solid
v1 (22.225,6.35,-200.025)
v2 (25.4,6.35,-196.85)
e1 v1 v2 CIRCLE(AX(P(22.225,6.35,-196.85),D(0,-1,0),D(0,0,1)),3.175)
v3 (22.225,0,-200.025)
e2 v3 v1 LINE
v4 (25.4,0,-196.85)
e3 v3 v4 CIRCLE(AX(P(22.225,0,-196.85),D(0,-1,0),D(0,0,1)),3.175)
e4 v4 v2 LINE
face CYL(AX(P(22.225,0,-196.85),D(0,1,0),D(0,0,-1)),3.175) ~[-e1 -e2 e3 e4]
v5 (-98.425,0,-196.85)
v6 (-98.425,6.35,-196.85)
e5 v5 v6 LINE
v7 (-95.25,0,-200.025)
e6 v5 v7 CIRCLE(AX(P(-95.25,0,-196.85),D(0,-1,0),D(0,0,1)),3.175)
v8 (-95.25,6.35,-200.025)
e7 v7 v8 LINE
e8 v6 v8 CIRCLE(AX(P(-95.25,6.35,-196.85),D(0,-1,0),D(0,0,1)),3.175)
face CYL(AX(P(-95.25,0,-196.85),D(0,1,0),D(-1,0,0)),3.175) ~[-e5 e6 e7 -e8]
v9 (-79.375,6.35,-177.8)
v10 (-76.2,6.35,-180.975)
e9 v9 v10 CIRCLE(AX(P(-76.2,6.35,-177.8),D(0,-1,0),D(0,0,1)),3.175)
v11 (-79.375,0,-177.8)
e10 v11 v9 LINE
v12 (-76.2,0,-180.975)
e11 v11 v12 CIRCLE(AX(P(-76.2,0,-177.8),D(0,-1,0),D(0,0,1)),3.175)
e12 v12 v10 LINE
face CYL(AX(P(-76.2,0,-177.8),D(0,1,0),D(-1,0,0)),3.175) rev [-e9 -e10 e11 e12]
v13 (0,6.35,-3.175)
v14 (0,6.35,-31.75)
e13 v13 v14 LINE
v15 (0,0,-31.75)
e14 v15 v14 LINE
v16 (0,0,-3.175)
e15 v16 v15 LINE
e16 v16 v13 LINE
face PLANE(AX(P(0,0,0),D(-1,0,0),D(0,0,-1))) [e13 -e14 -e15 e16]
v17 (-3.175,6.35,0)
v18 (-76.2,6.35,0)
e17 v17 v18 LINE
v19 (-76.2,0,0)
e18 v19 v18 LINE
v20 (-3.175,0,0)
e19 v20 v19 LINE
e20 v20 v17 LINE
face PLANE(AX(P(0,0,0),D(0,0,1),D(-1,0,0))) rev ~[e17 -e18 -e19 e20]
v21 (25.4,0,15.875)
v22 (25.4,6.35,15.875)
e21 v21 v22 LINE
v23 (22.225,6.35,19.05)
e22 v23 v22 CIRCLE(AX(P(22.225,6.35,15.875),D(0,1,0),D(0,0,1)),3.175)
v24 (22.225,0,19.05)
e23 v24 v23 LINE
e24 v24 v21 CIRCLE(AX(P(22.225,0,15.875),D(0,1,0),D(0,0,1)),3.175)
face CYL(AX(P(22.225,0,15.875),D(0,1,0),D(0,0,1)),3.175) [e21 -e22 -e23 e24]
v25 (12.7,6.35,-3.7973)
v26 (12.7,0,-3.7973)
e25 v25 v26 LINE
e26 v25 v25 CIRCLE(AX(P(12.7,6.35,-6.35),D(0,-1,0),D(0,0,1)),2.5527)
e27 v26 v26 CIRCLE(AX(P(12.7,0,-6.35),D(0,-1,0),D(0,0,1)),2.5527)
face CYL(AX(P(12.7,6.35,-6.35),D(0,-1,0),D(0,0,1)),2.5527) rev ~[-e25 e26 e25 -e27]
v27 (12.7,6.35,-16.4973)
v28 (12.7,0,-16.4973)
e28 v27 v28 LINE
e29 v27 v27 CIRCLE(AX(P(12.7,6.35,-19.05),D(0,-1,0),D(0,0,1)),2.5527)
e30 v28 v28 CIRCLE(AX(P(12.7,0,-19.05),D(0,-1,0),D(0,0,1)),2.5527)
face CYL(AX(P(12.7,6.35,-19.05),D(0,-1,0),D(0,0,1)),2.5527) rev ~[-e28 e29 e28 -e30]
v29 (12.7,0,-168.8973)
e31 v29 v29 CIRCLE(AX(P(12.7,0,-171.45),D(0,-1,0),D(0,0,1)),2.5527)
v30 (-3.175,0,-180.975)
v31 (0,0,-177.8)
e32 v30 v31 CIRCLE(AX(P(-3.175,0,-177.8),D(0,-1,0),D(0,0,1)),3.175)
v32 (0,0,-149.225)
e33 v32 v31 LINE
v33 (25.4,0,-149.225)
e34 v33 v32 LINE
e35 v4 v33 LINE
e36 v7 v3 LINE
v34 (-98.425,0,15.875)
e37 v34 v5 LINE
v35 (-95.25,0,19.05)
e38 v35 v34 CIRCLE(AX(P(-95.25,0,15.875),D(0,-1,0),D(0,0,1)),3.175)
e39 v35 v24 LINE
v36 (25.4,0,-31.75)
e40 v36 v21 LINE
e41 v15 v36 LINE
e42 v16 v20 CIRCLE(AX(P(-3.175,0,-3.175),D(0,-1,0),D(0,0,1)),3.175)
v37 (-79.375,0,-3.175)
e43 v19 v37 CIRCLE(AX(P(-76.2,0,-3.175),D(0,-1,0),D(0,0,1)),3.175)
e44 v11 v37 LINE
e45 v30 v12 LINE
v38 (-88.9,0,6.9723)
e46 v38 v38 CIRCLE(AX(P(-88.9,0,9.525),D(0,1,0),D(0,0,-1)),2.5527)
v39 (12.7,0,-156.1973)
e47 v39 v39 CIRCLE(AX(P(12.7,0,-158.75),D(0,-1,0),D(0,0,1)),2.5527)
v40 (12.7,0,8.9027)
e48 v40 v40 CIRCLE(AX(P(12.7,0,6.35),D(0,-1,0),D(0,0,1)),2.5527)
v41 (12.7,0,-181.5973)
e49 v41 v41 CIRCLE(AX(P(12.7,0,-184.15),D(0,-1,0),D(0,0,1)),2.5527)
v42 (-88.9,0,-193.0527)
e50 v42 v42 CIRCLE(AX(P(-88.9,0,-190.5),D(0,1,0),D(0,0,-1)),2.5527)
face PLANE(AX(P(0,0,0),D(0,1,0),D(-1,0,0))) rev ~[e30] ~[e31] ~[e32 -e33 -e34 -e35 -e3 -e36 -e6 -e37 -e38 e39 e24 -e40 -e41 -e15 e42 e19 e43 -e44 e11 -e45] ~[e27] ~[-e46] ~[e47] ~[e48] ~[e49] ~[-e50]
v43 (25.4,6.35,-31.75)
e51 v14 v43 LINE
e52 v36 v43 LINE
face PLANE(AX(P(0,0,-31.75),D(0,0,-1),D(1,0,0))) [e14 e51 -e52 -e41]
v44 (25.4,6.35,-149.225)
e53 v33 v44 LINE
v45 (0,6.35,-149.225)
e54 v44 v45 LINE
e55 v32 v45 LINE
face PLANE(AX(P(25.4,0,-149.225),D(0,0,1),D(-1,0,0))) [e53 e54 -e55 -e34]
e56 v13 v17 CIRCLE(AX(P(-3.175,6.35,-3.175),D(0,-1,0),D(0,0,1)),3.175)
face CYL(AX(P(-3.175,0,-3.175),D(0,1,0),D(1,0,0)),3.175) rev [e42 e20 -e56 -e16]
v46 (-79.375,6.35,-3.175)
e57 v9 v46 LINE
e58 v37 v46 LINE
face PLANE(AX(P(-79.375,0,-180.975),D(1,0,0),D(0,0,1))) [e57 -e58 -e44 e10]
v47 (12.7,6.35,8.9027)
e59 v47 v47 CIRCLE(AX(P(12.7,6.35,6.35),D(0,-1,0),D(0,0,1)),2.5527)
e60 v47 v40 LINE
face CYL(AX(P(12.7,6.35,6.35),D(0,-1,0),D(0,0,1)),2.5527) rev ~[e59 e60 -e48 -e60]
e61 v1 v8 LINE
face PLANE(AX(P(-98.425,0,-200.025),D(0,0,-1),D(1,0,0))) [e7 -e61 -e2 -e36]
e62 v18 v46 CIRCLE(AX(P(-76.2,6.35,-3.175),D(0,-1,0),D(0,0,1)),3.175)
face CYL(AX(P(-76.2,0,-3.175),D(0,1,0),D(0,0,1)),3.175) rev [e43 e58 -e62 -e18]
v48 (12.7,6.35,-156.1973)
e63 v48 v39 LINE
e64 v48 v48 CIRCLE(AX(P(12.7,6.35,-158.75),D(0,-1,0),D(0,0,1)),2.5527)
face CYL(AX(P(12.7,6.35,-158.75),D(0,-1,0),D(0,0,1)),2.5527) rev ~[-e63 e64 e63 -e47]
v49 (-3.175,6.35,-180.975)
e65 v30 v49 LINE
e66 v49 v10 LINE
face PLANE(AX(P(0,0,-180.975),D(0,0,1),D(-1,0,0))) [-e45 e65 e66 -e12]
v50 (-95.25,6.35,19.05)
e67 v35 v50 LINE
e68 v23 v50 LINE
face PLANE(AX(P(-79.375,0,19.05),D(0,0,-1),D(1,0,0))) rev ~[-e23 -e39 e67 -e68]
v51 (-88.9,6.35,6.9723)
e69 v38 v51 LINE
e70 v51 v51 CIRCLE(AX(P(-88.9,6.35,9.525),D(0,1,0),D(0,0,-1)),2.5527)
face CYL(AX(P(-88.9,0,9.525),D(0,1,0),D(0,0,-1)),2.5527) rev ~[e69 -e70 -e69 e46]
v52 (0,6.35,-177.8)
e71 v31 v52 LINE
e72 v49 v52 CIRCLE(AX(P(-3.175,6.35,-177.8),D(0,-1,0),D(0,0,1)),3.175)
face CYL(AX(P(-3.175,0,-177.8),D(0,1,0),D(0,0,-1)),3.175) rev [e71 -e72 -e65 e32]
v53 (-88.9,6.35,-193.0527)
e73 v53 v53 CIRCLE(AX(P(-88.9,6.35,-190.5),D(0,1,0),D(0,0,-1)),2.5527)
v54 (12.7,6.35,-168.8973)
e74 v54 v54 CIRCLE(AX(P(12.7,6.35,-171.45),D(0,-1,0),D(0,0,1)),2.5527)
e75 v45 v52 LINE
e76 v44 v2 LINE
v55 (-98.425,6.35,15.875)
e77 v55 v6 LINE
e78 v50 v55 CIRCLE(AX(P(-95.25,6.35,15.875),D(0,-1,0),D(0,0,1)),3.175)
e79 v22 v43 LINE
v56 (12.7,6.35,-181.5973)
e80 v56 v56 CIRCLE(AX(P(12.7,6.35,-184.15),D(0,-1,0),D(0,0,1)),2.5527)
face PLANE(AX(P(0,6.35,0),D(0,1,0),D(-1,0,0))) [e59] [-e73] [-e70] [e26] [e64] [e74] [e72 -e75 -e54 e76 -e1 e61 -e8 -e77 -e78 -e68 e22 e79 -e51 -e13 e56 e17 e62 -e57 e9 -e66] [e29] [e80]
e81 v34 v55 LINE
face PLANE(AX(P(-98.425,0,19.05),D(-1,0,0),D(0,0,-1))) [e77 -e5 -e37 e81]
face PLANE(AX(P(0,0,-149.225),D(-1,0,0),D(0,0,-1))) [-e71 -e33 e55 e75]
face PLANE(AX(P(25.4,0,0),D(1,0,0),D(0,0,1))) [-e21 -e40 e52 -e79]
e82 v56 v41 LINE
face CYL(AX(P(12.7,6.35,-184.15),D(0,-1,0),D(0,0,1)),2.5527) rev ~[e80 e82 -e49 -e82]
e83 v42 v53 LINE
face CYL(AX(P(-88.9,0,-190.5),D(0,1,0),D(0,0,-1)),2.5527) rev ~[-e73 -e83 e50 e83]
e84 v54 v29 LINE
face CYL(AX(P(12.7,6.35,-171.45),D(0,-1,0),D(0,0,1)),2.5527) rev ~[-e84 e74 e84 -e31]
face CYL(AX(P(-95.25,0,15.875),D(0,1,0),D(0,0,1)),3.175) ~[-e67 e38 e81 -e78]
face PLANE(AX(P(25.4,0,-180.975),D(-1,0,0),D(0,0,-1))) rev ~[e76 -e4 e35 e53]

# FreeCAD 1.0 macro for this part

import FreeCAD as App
import Part
import Sketcher
Q = App.Units.Quantity


def edges_at(feature, points):
    """Names of the edges that pass closest to the given points."""
    edges = feature.Shape.Edges
    near = lambda p: min(range(len(edges)), key=lambda i: edges[i].distToShape(Part.Vertex(*p))[0])
    return sorted({f"Edge{near(p) + 1}" for p in points})

doc = App.newDocument("Part")
body = doc.addObject("PartDesign::Body", "Body")

# Sketch on XZ plane
sketch1 = body.newObject("Sketcher::SketchObject", "Sketch")
sketch1.AttachmentSupport = (doc.getObject("XZ_Plane"), [""])
sketch1.MapMode = "FlatFace"
sketch1.addGeometry([
    Part.LineSegment(App.Vector(25, 19, 0), App.Vector(25, -32, 0)),  # 0
    Part.LineSegment(App.Vector(25, -32, 0), App.Vector(0, -32, 0)),  # 1
    Part.LineSegment(App.Vector(0, -32, 0), App.Vector(0, 0, 0)),  # 2
    Part.LineSegment(App.Vector(0, 0, 0), App.Vector(-79, 0, 0)),  # 3
    Part.LineSegment(App.Vector(-79, 0, 0), App.Vector(-79, -181, 0)),  # 4
    Part.LineSegment(App.Vector(-79, -181, 0), App.Vector(0, -181, 0)),  # 5
    Part.LineSegment(App.Vector(0, -181, 0), App.Vector(0, -149, 0)),  # 6
    Part.LineSegment(App.Vector(0, -149, 0), App.Vector(25, -149, 0)),  # 7
    Part.LineSegment(App.Vector(25, -149, 0), App.Vector(25, -200, 0)),  # 8
    Part.LineSegment(App.Vector(25, -200, 0), App.Vector(-98, -200, 0)),  # 9
    Part.LineSegment(App.Vector(-98, -200, 0), App.Vector(-98, 19, 0)),  # 10
    Part.LineSegment(App.Vector(-98, 19, 0), App.Vector(25, 19, 0)),  # 11
], False)
sketch1.addConstraint([
    Sketcher.Constraint("Coincident", 0, 2, 1, 1),
    Sketcher.Constraint("Coincident", 1, 2, 2, 1),
    Sketcher.Constraint("Coincident", 2, 2, 3, 1),
    Sketcher.Constraint("Coincident", 3, 2, 4, 1),
    Sketcher.Constraint("Coincident", 4, 2, 5, 1),
    Sketcher.Constraint("Coincident", 5, 2, 6, 1),
    Sketcher.Constraint("Coincident", 6, 2, 7, 1),
    Sketcher.Constraint("Coincident", 7, 2, 8, 1),
    Sketcher.Constraint("Coincident", 8, 2, 9, 1),
    Sketcher.Constraint("Coincident", 9, 2, 10, 1),
    Sketcher.Constraint("Coincident", 10, 2, 11, 1),
    Sketcher.Constraint("Coincident", 11, 2, 0, 1),
    Sketcher.Constraint("Vertical", 0),
    Sketcher.Constraint("Horizontal", 1),
    Sketcher.Constraint("Vertical", 2),
    Sketcher.Constraint("Horizontal", 3),
    Sketcher.Constraint("Vertical", 4),
    Sketcher.Constraint("Horizontal", 5),
    Sketcher.Constraint("Vertical", 6),
    Sketcher.Constraint("Horizontal", 7),
    Sketcher.Constraint("Vertical", 8),
    Sketcher.Constraint("Horizontal", 9),
    Sketcher.Constraint("Vertical", 10),
    Sketcher.Constraint("Horizontal", 11),
    Sketcher.Constraint("Coincident", 2, 2, -1, 1),
    Sketcher.Constraint("PointOnObject", 5, 2, -2),
    Sketcher.Constraint("Vertical", 0, 2, 7, 2),
    Sketcher.Constraint("Equal", 2, 6),
    Sketcher.Constraint("Equal", 0, 8),
    Sketcher.Constraint("DistanceX", 1, 2, 1, 1, Q("1 in")),
    Sketcher.Constraint("DistanceY", 0, 2, 0, 1, Q("2 in")),
    Sketcher.Constraint("DistanceX", 3, 2, 3, 1, Q("3.125 in")),
    Sketcher.Constraint("DistanceY", 4, 2, 4, 1, Q("7.125 in")),
    Sketcher.Constraint("DistanceY", -1, 1, 10, 2, Q("0.75 in")),
    Sketcher.Constraint("DistanceX", 9, 2, 4, 2, Q("0.75 in")),
])
pad1 = body.newObject("PartDesign::Pad", "Pad")
pad1.Profile = sketch1
pad1.Length = Q("0.25 in")
pad1.Reversed = True

# Sketch on XZ plane
sketch2 = body.newObject("Sketcher::SketchObject", "Sketch001")
sketch2.AttachmentSupport = (doc.getObject("XZ_Plane"), [""])
sketch2.MapMode = "FlatFace"
sketch2.addGeometry([
    Part.Circle(App.Vector(-88.9, -190.5, 0), App.Vector(0, 0, 1), 2.6),
    Part.Circle(App.Vector(-88.9, 9.5, 0), App.Vector(0, 0, 1), 2.6),
], False)
sketch2.addConstraint([
    Sketcher.Constraint("Equal", 0, 1),
    Sketcher.Constraint("Vertical", 0, 3, 1, 3),
    Sketcher.Constraint("Diameter", 0, Q("0.201 in")),
    Sketcher.Constraint("DistanceX", 0, 3, -1, 1, Q("3.5 in")),
    Sketcher.Constraint("DistanceY", 0, 3, -1, 1, Q("7.5 in")),
    Sketcher.Constraint("DistanceY", -1, 1, 1, 3, Q("0.375 in")),
])
doc.recompute()
hole = body.newObject("PartDesign::Hole", "Hole")
hole.Profile = sketch2
hole.ThreadType = "None"
hole.Diameter = Q("0.201 in")
hole.DepthType = "ThroughAll"
doc.recompute()

fillet = body.newObject("PartDesign::Fillet", "Fillet")
fillet.Base = (hole, edges_at(hole, [
    (-98.425, 3.175, -200.025),
    (25.4, 3.175, -200.025),
    (-79.375, 3.175, -180.975),
    (-79.375, 3.175, 0),
    (-98.425, 3.175, 19.05),
    (25.4, 3.175, 19.05),
    (0, 3.175, 0),
    (0, 3.175, -180.975),
]))
fillet.Radius = Q("0.125 in")

# Sketch on XZ plane
sketch3 = body.newObject("Sketcher::SketchObject", "Sketch002")
sketch3.AttachmentSupport = (doc.getObject("XZ_Plane"), [""])
sketch3.MapMode = "FlatFace"
sketch3.AttachmentOffset = App.Placement(App.Vector(0, 0, -0.25 * 25.4), App.Rotation())
sketch3.addGeometry([
    Part.Circle(App.Vector(12.7, 6.3, 0), App.Vector(0, 0, 1), 2.6),  # 0
    Part.Circle(App.Vector(12.7, -6.3, 0), App.Vector(0, 0, 1), 2.6),  # 1
    Part.Circle(App.Vector(12.7, -19.1, 0), App.Vector(0, 0, 1), 2.6),  # 2
    Part.Circle(App.Vector(12.7, -44.5, 0), App.Vector(0, 0, 1), 2.6),  # 3
    Part.Circle(App.Vector(12.7, -57.1, 0), App.Vector(0, 0, 1), 2.6),  # 4
    Part.Circle(App.Vector(12.7, -69.8, 0), App.Vector(0, 0, 1), 2.6),  # 5
    Part.Circle(App.Vector(12.7, -82.5, 0), App.Vector(0, 0, 1), 2.6),  # 6
    Part.Circle(App.Vector(12.7, -95.2, 0), App.Vector(0, 0, 1), 2.6),  # 7
    Part.Circle(App.Vector(12.7, -108, 0), App.Vector(0, 0, 1), 2.6),  # 8
    Part.Circle(App.Vector(12.7, -120.7, 0), App.Vector(0, 0, 1), 2.6),  # 9
    Part.Circle(App.Vector(12.7, -133.3, 0), App.Vector(0, 0, 1), 2.6),  # 10
    Part.Circle(App.Vector(12.7, -146.1, 0), App.Vector(0, 0, 1), 2.6),  # 11
    Part.Circle(App.Vector(12.7, -158.8, 0), App.Vector(0, 0, 1), 2.6),  # 12
    Part.Circle(App.Vector(12.7, -171.4, 0), App.Vector(0, 0, 1), 2.6),  # 13
    Part.Circle(App.Vector(12.7, -184.2, 0), App.Vector(0, 0, 1), 2.6),  # 14
], False)
sketch3.addConstraint([
    Sketcher.Constraint("Equal", 0, 1),
    Sketcher.Constraint("Equal", 1, 2),
    Sketcher.Constraint("Equal", 2, 3),
    Sketcher.Constraint("Equal", 3, 4),
    Sketcher.Constraint("Equal", 4, 5),
    Sketcher.Constraint("Equal", 5, 6),
    Sketcher.Constraint("Equal", 6, 7),
    Sketcher.Constraint("Equal", 7, 8),
    Sketcher.Constraint("Equal", 8, 9),
    Sketcher.Constraint("Equal", 9, 10),
    Sketcher.Constraint("Equal", 10, 11),
    Sketcher.Constraint("Equal", 11, 12),
    Sketcher.Constraint("Equal", 12, 13),
    Sketcher.Constraint("Equal", 13, 14),
    Sketcher.Constraint("Symmetric", 0, 3, 1, 3, -1),
    Sketcher.Constraint("Vertical", 1, 3, 2, 3),
    Sketcher.Constraint("Vertical", 2, 3, 3, 3),
    Sketcher.Constraint("Vertical", 3, 3, 4, 3),
    Sketcher.Constraint("Vertical", 4, 3, 5, 3),
    Sketcher.Constraint("Vertical", 5, 3, 6, 3),
    Sketcher.Constraint("Vertical", 6, 3, 7, 3),
    Sketcher.Constraint("Vertical", 7, 3, 8, 3),
    Sketcher.Constraint("Vertical", 8, 3, 9, 3),
    Sketcher.Constraint("Vertical", 9, 3, 10, 3),
    Sketcher.Constraint("Vertical", 10, 3, 11, 3),
    Sketcher.Constraint("Vertical", 11, 3, 12, 3),
    Sketcher.Constraint("Vertical", 12, 3, 13, 3),
    Sketcher.Constraint("Vertical", 13, 3, 14, 3),
    Sketcher.Constraint("Diameter", 0, Q("0.201 in")),
    Sketcher.Constraint("DistanceY", 2, 3, 0, 3, Q("1 in")),
    Sketcher.Constraint("DistanceY", 3, 3, 2, 3, Q("1 in")),
    Sketcher.Constraint("DistanceY", 4, 3, 1, 3, Q("2 in")),
    Sketcher.Constraint("DistanceY", 5, 3, 3, 3, Q("1 in")),
    Sketcher.Constraint("DistanceY", 6, 3, 4, 3, Q("1 in")),
    Sketcher.Constraint("DistanceY", 7, 3, 5, 3, Q("1 in")),
    Sketcher.Constraint("DistanceY", 8, 3, 6, 3, Q("1 in")),
    Sketcher.Constraint("DistanceY", 9, 3, 7, 3, Q("1 in")),
    Sketcher.Constraint("DistanceY", 10, 3, 8, 3, Q("1 in")),
    Sketcher.Constraint("DistanceY", 11, 3, 9, 3, Q("1 in")),
    Sketcher.Constraint("DistanceY", 12, 3, 10, 3, Q("1 in")),
    Sketcher.Constraint("DistanceY", 13, 3, 11, 3, Q("1 in")),
    Sketcher.Constraint("DistanceY", 14, 3, 12, 3, Q("1 in")),
    Sketcher.Constraint("DistanceX", -1, 1, 0, 3, Q("0.5 in")),
    Sketcher.Constraint("DistanceY", 1, 3, 0, 3, Q("0.5 in")),
])
doc.recompute()
hole2 = body.newObject("PartDesign::Hole", "Hole001")
hole2.Profile = sketch3
hole2.ThreadType = "None"
hole2.Diameter = Q("0.201 in")
hole2.DepthType = "ThroughAll"
hole2.Reversed = True

doc.recompute()
